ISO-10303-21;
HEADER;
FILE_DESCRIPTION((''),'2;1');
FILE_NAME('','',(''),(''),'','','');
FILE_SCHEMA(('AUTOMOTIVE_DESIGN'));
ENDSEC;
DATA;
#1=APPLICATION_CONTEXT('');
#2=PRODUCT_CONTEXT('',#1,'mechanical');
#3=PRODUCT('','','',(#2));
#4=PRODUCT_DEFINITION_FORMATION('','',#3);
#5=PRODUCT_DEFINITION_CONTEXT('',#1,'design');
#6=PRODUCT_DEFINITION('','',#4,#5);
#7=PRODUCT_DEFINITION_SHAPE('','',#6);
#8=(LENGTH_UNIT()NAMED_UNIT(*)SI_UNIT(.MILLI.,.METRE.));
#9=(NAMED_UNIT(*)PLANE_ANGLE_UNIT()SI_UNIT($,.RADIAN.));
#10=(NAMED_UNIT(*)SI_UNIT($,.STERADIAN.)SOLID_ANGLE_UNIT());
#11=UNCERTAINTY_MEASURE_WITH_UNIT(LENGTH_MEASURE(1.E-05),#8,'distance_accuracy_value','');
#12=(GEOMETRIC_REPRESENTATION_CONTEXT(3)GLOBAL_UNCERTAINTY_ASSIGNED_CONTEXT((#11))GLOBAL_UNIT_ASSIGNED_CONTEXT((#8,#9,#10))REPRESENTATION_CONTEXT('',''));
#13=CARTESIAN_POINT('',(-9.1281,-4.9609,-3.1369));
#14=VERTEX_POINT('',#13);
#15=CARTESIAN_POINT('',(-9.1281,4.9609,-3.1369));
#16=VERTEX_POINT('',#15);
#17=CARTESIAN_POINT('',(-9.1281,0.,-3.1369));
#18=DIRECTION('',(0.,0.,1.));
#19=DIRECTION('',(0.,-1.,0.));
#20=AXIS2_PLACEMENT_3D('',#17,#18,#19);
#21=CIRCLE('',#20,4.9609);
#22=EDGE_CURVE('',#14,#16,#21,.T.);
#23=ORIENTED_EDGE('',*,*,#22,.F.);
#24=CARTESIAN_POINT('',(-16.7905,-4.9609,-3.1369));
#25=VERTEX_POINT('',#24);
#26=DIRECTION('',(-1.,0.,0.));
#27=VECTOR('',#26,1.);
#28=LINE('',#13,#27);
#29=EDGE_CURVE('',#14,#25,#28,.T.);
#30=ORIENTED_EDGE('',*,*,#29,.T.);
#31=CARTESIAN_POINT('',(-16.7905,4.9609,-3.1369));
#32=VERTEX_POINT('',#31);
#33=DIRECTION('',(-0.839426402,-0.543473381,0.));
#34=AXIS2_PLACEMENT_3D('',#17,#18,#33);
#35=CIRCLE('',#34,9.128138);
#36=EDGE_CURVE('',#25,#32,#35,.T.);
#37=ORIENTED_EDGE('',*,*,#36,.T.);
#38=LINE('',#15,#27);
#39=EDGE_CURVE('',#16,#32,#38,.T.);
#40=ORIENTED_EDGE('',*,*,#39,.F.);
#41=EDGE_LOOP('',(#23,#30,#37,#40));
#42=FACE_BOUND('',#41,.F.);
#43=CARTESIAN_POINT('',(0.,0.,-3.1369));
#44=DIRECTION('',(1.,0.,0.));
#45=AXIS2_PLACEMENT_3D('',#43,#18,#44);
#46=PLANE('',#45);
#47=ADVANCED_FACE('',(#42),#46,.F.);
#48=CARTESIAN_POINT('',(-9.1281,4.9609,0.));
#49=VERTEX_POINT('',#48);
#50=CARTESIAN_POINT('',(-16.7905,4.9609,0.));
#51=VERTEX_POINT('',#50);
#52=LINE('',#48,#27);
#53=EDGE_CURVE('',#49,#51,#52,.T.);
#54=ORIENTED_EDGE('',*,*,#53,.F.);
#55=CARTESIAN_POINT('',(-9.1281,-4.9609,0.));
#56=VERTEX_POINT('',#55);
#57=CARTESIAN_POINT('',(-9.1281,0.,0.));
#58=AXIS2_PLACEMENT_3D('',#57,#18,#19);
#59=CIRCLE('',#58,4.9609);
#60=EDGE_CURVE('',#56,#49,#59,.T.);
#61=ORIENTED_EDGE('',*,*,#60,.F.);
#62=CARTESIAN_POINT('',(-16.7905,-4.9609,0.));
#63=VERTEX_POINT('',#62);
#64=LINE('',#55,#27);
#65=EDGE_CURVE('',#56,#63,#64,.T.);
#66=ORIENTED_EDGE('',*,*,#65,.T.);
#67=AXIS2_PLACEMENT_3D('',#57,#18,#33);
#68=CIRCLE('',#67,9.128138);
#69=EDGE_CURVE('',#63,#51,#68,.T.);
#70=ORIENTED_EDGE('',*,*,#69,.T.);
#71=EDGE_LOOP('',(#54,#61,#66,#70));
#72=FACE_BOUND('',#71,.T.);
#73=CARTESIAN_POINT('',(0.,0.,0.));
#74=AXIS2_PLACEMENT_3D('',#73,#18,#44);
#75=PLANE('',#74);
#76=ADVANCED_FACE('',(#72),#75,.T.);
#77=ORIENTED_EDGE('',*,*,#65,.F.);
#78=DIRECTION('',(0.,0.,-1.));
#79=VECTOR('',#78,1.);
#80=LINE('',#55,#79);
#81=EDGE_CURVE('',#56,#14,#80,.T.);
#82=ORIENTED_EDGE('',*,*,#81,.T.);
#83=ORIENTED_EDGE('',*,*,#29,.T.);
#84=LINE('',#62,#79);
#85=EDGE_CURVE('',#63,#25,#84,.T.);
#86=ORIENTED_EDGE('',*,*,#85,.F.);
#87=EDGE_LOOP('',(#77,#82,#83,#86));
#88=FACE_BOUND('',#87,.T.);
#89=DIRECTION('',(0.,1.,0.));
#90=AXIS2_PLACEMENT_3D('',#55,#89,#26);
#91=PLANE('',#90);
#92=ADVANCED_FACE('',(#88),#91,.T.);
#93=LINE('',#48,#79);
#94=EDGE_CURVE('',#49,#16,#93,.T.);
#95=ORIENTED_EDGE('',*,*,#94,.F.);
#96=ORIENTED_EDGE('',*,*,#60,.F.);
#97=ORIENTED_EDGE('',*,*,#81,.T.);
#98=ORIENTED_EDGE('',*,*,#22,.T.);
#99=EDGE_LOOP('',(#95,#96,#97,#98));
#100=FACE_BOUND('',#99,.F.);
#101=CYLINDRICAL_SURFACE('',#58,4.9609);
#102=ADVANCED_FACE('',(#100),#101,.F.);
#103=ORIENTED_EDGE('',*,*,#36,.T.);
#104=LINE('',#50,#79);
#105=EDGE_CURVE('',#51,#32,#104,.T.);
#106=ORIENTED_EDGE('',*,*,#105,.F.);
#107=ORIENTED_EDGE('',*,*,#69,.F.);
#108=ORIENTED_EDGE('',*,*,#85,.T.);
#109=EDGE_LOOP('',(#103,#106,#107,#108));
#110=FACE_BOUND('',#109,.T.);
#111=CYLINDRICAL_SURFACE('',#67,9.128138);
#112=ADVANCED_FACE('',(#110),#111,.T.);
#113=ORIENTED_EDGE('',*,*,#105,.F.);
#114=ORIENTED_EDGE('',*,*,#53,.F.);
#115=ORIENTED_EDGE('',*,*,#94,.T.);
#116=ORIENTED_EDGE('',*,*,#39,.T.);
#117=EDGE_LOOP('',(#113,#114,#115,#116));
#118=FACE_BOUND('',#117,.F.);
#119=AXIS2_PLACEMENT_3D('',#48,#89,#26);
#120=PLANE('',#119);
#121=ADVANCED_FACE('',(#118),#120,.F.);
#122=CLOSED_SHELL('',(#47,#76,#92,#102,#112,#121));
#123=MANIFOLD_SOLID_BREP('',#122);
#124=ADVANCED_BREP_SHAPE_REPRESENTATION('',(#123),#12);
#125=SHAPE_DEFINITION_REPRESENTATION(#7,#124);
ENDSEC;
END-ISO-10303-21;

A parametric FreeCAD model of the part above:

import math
import FreeCAD as App
import Part
import Sketcher

V = App.Vector
Q = App.Units.Quantity

doc = App.newDocument("Part")
body = doc.addObject("PartDesign::Body", "Body")

# Sketch on XY plane
sketch1 = body.newObject("Sketcher::SketchObject", "Sketch")
sketch1.AttachmentSupport = (doc.getObject("XY_Plane"), [""])
sketch1.MapMode = "FlatFace"
sketch1.addGeometry(Part.LineSegment(V(-9.1, -5, 0), V(-16.8, -5, 0)), False)
sketch1.addGeometry(Part.ArcOfCircle(Part.Circle(V(-9.1, 0, 0), V(0, 0, 1), 9.1), math.radians(-147), math.radians(147)), False)
sketch1.addGeometry(Part.LineSegment(V(-16.8, 5, 0), V(-9.1, 5, 0)), False)
sketch1.addGeometry(Part.ArcOfCircle(Part.Circle(V(-9.1, 0, 0), V(0, 0, 1), 5), math.radians(-90), math.radians(90)), False)
sketch1.addConstraint(Sketcher.Constraint("Coincident", 0, 2, 1, 1))
sketch1.addConstraint(Sketcher.Constraint("Coincident", 1, 2, 2, 1))
sketch1.addConstraint(Sketcher.Constraint("Tangent", 2, 2, 3, 2))
sketch1.addConstraint(Sketcher.Constraint("Tangent", 3, 1, 0, 1))
sketch1.addConstraint(Sketcher.Constraint("Horizontal", 0))
sketch1.addConstraint(Sketcher.Constraint("Horizontal", 2))
sketch1.addConstraint(Sketcher.Constraint("Coincident", 3, 3, 1, 3))
sketch1.addConstraint(Sketcher.Constraint("PointOnObject", 1, 3, -1))
sketch1.addConstraint(Sketcher.Constraint("Radius", 1, Q("0.359374 in")))
sketch1.addConstraint(Sketcher.Constraint("Radius", 3, Q("0.1953 in")))
sketch1.addConstraint(Sketcher.Constraint("DistanceX", 1, 3, -1, 1, Q("0.3593701 in")))
pad1 = body.newObject("PartDesign::Pad", "Pad")
pad1.Profile = sketch1
pad1.Length = Q("0.1235 in")
pad1.Reversed = True

doc.recompute()
